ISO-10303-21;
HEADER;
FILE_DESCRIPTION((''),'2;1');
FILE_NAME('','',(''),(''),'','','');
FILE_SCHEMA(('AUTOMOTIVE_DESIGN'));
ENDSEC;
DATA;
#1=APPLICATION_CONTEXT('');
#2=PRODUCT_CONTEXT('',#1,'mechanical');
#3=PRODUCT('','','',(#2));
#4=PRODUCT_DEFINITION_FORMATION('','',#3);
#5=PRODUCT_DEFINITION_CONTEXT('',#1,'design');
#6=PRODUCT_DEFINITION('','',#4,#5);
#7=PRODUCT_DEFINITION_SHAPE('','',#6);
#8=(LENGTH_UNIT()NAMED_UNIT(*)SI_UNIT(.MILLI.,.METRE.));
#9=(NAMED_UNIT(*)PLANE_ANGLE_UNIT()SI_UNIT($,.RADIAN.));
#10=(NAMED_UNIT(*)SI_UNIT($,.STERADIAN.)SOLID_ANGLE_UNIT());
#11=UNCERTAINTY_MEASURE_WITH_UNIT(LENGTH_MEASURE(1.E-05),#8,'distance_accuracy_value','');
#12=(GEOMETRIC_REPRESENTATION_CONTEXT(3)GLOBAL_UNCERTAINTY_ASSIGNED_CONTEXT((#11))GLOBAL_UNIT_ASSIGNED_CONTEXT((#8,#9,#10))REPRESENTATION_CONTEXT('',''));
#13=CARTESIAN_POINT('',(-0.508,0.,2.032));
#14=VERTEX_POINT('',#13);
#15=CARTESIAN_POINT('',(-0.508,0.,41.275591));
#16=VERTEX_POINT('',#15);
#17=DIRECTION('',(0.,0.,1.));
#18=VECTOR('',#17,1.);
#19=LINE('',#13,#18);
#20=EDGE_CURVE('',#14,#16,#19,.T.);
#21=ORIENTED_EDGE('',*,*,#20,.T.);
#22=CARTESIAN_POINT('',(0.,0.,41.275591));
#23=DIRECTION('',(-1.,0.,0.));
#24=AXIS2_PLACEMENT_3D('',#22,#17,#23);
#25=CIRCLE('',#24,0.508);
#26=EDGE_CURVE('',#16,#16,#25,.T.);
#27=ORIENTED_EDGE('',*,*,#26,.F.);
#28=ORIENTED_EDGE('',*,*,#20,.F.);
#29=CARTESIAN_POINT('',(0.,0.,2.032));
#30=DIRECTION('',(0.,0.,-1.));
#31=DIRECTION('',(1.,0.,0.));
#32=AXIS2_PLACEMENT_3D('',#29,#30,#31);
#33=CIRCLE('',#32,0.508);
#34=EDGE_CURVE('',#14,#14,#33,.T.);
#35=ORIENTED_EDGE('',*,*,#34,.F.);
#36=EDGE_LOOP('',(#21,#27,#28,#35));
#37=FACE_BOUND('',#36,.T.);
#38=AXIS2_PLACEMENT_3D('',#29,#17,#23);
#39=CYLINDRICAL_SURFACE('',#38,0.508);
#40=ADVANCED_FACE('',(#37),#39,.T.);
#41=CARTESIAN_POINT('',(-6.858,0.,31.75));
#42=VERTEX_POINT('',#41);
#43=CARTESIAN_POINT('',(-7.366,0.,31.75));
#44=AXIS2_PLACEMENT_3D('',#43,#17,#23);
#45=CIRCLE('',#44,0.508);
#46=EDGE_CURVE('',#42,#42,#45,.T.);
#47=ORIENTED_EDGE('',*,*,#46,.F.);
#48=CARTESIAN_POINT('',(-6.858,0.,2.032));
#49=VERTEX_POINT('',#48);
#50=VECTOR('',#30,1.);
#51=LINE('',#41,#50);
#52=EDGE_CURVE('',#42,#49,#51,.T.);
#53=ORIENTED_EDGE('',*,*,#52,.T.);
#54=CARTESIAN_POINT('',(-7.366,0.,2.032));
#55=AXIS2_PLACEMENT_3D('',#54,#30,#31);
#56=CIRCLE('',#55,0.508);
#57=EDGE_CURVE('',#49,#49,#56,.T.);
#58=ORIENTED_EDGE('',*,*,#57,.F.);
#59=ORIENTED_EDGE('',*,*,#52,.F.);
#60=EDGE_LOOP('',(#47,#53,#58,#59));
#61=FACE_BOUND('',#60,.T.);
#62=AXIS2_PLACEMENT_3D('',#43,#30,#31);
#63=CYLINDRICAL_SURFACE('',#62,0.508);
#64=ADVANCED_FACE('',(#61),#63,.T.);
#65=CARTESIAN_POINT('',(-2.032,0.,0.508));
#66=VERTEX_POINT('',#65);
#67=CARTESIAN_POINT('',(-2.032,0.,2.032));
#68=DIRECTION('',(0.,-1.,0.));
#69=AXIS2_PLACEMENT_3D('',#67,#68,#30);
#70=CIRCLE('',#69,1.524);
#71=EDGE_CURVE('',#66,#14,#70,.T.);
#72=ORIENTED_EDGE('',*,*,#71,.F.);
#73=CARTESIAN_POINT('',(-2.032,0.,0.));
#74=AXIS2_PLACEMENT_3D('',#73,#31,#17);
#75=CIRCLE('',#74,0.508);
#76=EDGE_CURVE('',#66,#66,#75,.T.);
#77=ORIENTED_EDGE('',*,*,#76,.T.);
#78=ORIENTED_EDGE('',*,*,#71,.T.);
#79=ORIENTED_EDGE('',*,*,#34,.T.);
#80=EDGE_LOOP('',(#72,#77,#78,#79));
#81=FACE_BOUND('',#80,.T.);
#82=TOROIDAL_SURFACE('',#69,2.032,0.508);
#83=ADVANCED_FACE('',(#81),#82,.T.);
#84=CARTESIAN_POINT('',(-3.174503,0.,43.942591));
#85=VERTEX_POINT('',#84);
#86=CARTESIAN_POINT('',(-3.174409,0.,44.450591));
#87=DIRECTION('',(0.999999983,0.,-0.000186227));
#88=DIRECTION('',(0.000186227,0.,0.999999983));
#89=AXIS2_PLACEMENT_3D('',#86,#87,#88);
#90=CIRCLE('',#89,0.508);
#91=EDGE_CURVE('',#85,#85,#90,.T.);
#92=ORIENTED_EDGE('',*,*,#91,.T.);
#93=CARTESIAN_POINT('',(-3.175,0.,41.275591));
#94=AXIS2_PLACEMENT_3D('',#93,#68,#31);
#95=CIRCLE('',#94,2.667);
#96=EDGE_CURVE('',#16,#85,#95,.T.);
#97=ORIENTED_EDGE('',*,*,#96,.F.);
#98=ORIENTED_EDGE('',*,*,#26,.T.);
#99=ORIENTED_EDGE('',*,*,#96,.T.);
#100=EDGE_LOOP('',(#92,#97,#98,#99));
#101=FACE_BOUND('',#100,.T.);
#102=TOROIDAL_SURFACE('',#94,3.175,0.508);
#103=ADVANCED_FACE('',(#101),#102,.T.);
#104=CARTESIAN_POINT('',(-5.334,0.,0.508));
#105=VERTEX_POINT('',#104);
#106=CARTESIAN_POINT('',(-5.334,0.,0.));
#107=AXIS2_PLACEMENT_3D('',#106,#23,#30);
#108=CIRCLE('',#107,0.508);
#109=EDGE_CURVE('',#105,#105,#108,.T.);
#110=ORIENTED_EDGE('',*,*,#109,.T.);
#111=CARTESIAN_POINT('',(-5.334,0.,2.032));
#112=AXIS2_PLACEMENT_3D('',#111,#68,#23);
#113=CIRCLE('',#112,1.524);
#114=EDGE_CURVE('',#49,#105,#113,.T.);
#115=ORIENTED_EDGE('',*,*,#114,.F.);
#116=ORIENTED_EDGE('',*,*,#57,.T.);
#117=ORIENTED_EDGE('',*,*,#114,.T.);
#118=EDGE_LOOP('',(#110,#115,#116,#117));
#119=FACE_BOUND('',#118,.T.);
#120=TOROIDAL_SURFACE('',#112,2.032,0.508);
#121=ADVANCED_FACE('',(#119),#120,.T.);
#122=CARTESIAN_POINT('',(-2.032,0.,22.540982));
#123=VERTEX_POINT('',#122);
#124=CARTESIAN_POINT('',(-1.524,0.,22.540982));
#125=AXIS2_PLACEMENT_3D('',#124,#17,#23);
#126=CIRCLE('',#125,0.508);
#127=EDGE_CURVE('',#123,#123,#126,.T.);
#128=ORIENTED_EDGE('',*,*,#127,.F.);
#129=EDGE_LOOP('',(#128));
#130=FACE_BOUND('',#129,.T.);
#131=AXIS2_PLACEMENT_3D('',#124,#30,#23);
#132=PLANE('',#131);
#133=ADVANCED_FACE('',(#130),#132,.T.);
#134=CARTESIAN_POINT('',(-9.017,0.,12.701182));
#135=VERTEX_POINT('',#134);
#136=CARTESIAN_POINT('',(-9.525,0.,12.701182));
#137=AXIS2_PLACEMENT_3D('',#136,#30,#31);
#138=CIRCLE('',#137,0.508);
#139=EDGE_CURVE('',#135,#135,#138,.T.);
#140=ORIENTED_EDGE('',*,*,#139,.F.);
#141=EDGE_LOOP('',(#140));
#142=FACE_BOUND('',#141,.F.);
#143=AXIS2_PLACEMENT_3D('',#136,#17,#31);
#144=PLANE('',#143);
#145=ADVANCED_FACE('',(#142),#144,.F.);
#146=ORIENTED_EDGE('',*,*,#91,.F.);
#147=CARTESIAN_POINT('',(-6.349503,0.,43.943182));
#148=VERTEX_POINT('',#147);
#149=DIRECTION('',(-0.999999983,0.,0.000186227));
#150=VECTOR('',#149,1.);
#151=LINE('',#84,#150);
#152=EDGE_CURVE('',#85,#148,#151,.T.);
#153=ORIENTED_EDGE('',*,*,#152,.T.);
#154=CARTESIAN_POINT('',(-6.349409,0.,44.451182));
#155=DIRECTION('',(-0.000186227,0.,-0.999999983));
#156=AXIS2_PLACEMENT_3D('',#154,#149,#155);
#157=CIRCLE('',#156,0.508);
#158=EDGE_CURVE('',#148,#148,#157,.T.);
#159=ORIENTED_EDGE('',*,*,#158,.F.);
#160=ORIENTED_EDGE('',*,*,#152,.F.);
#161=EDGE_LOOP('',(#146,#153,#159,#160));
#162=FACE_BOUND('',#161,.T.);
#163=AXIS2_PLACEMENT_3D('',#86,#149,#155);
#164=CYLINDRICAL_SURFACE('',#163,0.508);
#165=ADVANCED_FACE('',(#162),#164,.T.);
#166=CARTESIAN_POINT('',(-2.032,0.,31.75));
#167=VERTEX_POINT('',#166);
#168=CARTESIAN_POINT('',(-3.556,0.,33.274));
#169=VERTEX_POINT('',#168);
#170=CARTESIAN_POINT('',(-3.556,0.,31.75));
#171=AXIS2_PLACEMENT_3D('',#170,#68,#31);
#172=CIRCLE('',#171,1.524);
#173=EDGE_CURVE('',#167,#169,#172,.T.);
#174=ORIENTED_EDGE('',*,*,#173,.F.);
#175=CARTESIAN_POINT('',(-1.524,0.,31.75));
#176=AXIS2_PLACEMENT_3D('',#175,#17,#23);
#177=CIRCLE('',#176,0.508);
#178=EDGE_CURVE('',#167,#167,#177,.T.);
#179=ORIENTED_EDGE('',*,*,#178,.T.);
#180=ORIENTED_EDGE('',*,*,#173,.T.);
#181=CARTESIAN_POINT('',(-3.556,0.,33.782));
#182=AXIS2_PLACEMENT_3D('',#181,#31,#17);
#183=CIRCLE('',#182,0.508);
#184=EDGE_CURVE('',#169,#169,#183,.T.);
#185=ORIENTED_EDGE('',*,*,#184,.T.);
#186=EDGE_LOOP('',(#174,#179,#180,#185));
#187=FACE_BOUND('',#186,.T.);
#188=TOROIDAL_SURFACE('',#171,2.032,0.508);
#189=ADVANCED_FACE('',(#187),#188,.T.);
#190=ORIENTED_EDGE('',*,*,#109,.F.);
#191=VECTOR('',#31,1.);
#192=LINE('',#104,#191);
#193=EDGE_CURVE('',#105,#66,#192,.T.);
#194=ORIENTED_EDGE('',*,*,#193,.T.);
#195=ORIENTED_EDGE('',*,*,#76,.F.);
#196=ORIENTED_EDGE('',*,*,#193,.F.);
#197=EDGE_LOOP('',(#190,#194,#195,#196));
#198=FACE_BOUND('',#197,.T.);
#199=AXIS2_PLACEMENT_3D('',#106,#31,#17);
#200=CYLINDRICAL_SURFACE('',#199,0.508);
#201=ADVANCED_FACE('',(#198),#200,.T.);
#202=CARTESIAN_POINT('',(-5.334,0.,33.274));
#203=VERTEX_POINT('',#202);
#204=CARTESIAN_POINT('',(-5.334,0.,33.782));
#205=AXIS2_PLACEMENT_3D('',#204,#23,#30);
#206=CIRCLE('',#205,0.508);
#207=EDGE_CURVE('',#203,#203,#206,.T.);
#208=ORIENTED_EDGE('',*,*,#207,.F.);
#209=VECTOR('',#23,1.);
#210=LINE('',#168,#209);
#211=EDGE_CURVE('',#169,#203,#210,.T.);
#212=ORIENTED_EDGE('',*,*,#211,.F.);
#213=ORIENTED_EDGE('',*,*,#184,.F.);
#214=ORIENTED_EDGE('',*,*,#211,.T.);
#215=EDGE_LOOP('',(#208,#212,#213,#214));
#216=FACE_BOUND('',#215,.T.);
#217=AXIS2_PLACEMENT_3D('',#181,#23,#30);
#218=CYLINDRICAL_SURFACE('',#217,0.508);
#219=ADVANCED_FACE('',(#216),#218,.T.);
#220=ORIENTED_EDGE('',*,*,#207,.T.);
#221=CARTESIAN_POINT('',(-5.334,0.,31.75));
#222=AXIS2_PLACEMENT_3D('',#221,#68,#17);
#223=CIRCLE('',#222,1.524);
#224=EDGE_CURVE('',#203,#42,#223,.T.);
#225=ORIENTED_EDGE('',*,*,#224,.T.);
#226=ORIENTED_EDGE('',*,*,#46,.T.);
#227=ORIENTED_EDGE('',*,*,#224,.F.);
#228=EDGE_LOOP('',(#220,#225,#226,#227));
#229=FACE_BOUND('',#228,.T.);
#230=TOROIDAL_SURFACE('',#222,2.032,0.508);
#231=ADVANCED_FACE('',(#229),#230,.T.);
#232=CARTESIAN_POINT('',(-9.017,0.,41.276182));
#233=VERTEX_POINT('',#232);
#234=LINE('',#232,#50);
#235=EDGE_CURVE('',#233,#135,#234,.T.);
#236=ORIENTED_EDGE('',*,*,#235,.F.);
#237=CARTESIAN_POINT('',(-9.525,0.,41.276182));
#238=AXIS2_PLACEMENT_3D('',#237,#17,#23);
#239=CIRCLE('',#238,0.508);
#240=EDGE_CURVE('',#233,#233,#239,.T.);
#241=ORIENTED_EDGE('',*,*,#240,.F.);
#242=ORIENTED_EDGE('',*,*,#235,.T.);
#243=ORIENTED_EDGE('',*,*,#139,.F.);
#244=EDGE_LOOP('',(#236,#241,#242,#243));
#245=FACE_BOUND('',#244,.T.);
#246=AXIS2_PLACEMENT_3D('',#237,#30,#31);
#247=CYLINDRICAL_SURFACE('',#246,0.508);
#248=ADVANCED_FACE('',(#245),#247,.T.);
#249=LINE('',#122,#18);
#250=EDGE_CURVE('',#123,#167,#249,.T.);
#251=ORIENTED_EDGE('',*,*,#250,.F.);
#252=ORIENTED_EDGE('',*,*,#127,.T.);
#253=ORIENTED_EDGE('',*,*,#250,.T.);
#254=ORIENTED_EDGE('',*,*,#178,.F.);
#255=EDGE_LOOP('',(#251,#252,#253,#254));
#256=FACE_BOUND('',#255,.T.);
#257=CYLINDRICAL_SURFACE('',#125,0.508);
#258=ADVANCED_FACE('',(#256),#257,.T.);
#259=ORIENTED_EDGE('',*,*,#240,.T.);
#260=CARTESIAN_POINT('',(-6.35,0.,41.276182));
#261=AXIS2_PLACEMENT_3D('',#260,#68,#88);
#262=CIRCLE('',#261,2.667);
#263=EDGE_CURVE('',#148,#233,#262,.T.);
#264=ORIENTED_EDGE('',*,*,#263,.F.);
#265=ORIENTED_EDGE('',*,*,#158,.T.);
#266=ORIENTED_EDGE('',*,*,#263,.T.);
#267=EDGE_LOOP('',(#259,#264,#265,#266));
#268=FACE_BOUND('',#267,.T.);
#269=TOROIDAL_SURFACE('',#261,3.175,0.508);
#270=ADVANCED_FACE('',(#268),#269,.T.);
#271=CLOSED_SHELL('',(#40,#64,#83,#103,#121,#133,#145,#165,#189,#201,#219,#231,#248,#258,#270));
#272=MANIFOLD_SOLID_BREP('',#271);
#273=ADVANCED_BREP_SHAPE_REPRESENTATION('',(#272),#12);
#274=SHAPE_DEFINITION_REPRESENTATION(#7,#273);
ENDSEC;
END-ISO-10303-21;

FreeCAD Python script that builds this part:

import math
import FreeCAD as App
import Part
import Sketcher

V = App.Vector
Q = App.Units.Quantity

doc = App.newDocument("Part")
body = doc.addObject("PartDesign::Body", "Body")

sketch1 = body.newObject("Sketcher::SketchObject", "Sketch")
sketch1.AttachmentSupport = (doc.getObject("XY_Plane"), [""])
sketch1.MapMode = "FlatFace"
sketch1.AttachmentOffset = App.Placement(V(0, 0, 12.701182), App.Rotation())
sketch1.addGeometry(Part.Circle(V(-9.5, 0, 0), V(0, 0, 1), 0.5), False)
sketch1.addConstraint(Sketcher.Constraint("PointOnObject", 0, 3, -1))
sketch1.addConstraint(Sketcher.Constraint("Diameter", 0, Q("0.04 in")))
sketch1.addConstraint(Sketcher.Constraint("DistanceX", 0, 3, -1, 1, Q("0.375 in")))

sketch2 = body.newObject("Sketcher::SketchObject", "Sketch001")
sketch2.AttachmentSupport = (doc.getObject("XZ_Plane"), [""])
sketch2.MapMode = "FlatFace"
sketch2.addGeometry(Part.LineSegment(V(-1.5, 22.5, 0), V(-1.5, 31.8, 0)), False)
sketch2.addGeometry(Part.ArcOfCircle(Part.Circle(V(-3.6, 31.8, 0), V(0, 0, 1), 2), math.radians(0), math.radians(90)), False)
sketch2.addGeometry(Part.LineSegment(V(-3.6, 33.8, 0), V(-5.3, 33.8, 0)), False)
sketch2.addGeometry(Part.ArcOfCircle(Part.Circle(V(-5.3, 31.8, 0), V(0, 0, 1), 2), math.radians(90), math.radians(180)), False)
sketch2.addGeometry(Part.LineSegment(V(-7.4, 31.8, 0), V(-7.4, 2, 0)), False)
sketch2.addGeometry(Part.ArcOfCircle(Part.Circle(V(-5.3, 2, 0), V(0, 0, 1), 2), math.radians(180), math.radians(270)), False)
sketch2.addGeometry(Part.LineSegment(V(-5.3, 0, 0), V(-2, 0, 0)), False)
sketch2.addGeometry(Part.ArcOfCircle(Part.Circle(V(-2, 2, 0), V(0, 0, 1), 2), math.radians(-90), math.radians(0)), False)
sketch2.addGeometry(Part.LineSegment(V(0, 2, 0), V(0, 41.3, 0)), False)
sketch2.addGeometry(Part.ArcOfCircle(Part.Circle(V(-3.2, 41.3, 0), V(0, 0, 1), 3.2), math.radians(0), math.radians(90)), False)
sketch2.addGeometry(Part.LineSegment(V(-3.2, 44.5, 0), V(-6.3, 44.5, 0)), False)
sketch2.addGeometry(Part.ArcOfCircle(Part.Circle(V(-6.3, 41.3, 0), V(0, 0, 1), 3.2), math.radians(90), math.radians(180)), False)
sketch2.addGeometry(Part.LineSegment(V(-9.5, 41.3, 0), V(-9.5, 12.7, 0)), False)
sketch2.addConstraint(Sketcher.Constraint("Tangent", 0, 2, 1, 1))
sketch2.addConstraint(Sketcher.Constraint("Tangent", 1, 2, 2, 1))
sketch2.addConstraint(Sketcher.Constraint("Tangent", 2, 2, 3, 1))
sketch2.addConstraint(Sketcher.Constraint("Tangent", 3, 2, 4, 1))
sketch2.addConstraint(Sketcher.Constraint("Tangent", 4, 2, 5, 1))
sketch2.addConstraint(Sketcher.Constraint("Tangent", 5, 2, 6, 1))
sketch2.addConstraint(Sketcher.Constraint("Tangent", 6, 2, 7, 1))
sketch2.addConstraint(Sketcher.Constraint("Tangent", 7, 2, 8, 1))
sketch2.addConstraint(Sketcher.Constraint("Tangent", 8, 2, 9, 1))
sketch2.addConstraint(Sketcher.Constraint("Tangent", 9, 2, 10, 1))
sketch2.addConstraint(Sketcher.Constraint("Tangent", 10, 2, 11, 1))
sketch2.addConstraint(Sketcher.Constraint("Tangent", 11, 2, 12, 1))
sketch2.addConstraint(Sketcher.Constraint("Vertical", 0))
sketch2.addConstraint(Sketcher.Constraint("Horizontal", 2))
sketch2.addConstraint(Sketcher.Constraint("Vertical", 4))
sketch2.addConstraint(Sketcher.Constraint("Horizontal", 6))
sketch2.addConstraint(Sketcher.Constraint("Vertical", 8))
sketch2.addConstraint(Sketcher.Constraint("Vertical", 12))
sketch2.addConstraint(Sketcher.Constraint("Equal", 1, 3))
sketch2.addConstraint(Sketcher.Constraint("Equal", 3, 5))
sketch2.addConstraint(Sketcher.Constraint("Equal", 5, 7))
sketch2.addConstraint(Sketcher.Constraint("Equal", 9, 11))
sketch2.addConstraint(Sketcher.Constraint("PointOnObject", 5, 2, -1))
sketch2.addConstraint(Sketcher.Constraint("PointOnObject", 7, 2, -2))
sketch2.addConstraint(Sketcher.Constraint("Radius", 1, Q("0.08 in")))
sketch2.addConstraint(Sketcher.Constraint("Radius", 9, Q("0.125 in")))
sketch2.addConstraint(Sketcher.Constraint("DistanceX", 2, 2, 2, 1, Q("0.07 in")))
sketch2.addConstraint(Sketcher.Constraint("DistanceX", 6, 1, 6, 2, Q("0.13 in")))
sketch2.addConstraint(Sketcher.Constraint("DistanceY", 4, 2, 4, 1, Q("1.17 in")))
sketch2.addConstraint(Sketcher.Constraint("DistanceY", 12, 2, 12, 1, Q("1.125 in")))
sketch2.addConstraint(Sketcher.Constraint("DistanceX", 11, 3, -1, 1, Q("0.25 in")))
sketch2.addConstraint(Sketcher.Constraint("DistanceY", 0, 1, 0, 2, 9.209018))
sketch2.addConstraint(Sketcher.Constraint("DistanceY", 8, 1, 8, 2, 39.243591))
sketch2.addConstraint(Sketcher.Constraint("DistanceY", 0, 1, 11, 3, 18.735201))
doc.recompute()

additivepipe = body.newObject("PartDesign::AdditivePipe", "AdditivePipe")
additivepipe.Profile = sketch1
additivepipe.Spine = (sketch2, ["Edge1", "Edge2", "Edge3", "Edge4", "Edge5", "Edge6", "Edge7", "Edge8", "Edge9", "Edge10", "Edge11", "Edge12", "Edge13"])

doc.recompute()
